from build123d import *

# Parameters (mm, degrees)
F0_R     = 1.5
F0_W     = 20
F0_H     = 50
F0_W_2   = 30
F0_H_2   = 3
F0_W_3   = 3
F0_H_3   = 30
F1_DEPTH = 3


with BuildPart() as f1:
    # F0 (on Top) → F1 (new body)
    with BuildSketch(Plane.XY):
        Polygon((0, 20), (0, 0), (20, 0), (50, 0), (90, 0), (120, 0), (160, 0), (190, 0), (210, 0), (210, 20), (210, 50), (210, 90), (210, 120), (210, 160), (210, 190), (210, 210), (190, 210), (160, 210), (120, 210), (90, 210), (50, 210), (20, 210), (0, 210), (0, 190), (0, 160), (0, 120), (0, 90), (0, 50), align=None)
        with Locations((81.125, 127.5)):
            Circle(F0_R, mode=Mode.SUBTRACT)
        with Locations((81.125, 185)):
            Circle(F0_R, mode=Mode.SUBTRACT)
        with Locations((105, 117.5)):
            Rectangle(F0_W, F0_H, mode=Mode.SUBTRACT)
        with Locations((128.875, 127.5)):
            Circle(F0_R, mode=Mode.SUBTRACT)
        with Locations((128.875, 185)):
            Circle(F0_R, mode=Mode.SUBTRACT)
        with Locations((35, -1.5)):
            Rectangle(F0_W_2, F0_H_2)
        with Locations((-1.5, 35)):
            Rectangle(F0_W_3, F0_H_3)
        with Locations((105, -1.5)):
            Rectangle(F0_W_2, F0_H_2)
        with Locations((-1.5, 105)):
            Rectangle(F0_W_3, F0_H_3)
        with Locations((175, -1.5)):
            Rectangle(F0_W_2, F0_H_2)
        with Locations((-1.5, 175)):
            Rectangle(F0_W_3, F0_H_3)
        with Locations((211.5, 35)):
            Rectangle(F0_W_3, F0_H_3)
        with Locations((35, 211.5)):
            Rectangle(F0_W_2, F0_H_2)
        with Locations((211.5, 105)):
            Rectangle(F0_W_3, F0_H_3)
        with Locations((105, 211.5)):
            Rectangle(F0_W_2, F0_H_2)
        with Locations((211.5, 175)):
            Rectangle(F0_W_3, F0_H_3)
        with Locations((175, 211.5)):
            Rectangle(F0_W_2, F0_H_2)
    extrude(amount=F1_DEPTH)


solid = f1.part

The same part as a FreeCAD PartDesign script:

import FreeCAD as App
import Part
import Sketcher

V = App.Vector
Q = App.Units.Quantity

doc = App.newDocument("Part")
params = doc.addObject("Spreadsheet::Sheet", "Params")
for row, (alias, value) in enumerate([
    ("sketch1_diameter", "3 mm"),
    ("sketch1_width", "20 mm"),
    ("sketch1_width2", "30 mm"),
    ("sketch1_width3", "40 mm"),
    ("sketch1_width4", "3 mm"),
    ("pad1_length", "3 mm"),
], start=1):
    params.set(f"A{row}", alias)
    params.set(f"B{row}", "=" + value)
    params.setAlias(f"B{row}", alias)

body = doc.addObject("PartDesign::Body", "Body")

# Sketch on XY plane
sketch1 = body.newObject("Sketcher::SketchObject", "Sketch")
sketch1.AttachmentSupport = (doc.getObject("XY_Plane"), [""])
sketch1.MapMode = "FlatFace"
sketch1.addGeometry([
    Part.LineSegment(V(0, 0, 0), V(20, 0, 0)),  # 0
    Part.LineSegment(V(20, 0, 0), V(20, -3, 0)),  # 1
    Part.LineSegment(V(20, -3, 0), V(50, -3, 0)),  # 2
    Part.LineSegment(V(50, -3, 0), V(50, 0, 0)),  # 3
    Part.LineSegment(V(50, 0, 0), V(90, 0, 0)),  # 4
    Part.LineSegment(V(90, 0, 0), V(90, -3, 0)),  # 5
    Part.LineSegment(V(90, -3, 0), V(120, -3, 0)),  # 6
    Part.LineSegment(V(120, -3, 0), V(120, 0, 0)),  # 7
    Part.LineSegment(V(120, 0, 0), V(160, 0, 0)),  # 8
    Part.LineSegment(V(160, 0, 0), V(160, -3, 0)),  # 9
    Part.LineSegment(V(160, -3, 0), V(190, -3, 0)),  # 10
    Part.LineSegment(V(190, -3, 0), V(190, 0, 0)),  # 11
    Part.LineSegment(V(190, 0, 0), V(210, 0, 0)),  # 12
    Part.LineSegment(V(210, 0, 0), V(210, 20, 0)),  # 13
    Part.LineSegment(V(210, 20, 0), V(213, 20, 0)),  # 14
    Part.LineSegment(V(213, 20, 0), V(213, 50, 0)),  # 15
    Part.LineSegment(V(213, 50, 0), V(210, 50, 0)),  # 16
    Part.LineSegment(V(210, 50, 0), V(210, 90, 0)),  # 17
    Part.LineSegment(V(210, 90, 0), V(213, 90, 0)),  # 18
    Part.LineSegment(V(213, 90, 0), V(213, 120, 0)),  # 19
    Part.LineSegment(V(213, 120, 0), V(210, 120, 0)),  # 20
    Part.LineSegment(V(210, 120, 0), V(210, 160, 0)),  # 21
    Part.LineSegment(V(210, 160, 0), V(213, 160, 0)),  # 22
    Part.LineSegment(V(213, 160, 0), V(213, 190, 0)),  # 23
    Part.LineSegment(V(213, 190, 0), V(210, 190, 0)),  # 24
    Part.LineSegment(V(210, 190, 0), V(210, 210, 0)),  # 25
    Part.LineSegment(V(210, 210, 0), V(190, 210, 0)),  # 26
    Part.LineSegment(V(190, 210, 0), V(190, 213, 0)),  # 27
    Part.LineSegment(V(190, 213, 0), V(160, 213, 0)),  # 28
    Part.LineSegment(V(160, 213, 0), V(160, 210, 0)),  # 29
    Part.LineSegment(V(160, 210, 0), V(120, 210, 0)),  # 30
    Part.LineSegment(V(120, 210, 0), V(120, 213, 0)),  # 31
    Part.LineSegment(V(120, 213, 0), V(90, 213, 0)),  # 32
    Part.LineSegment(V(90, 213, 0), V(90, 210, 0)),  # 33
    Part.LineSegment(V(90, 210, 0), V(50, 210, 0)),  # 34
    Part.LineSegment(V(50, 210, 0), V(50, 213, 0)),  # 35
    Part.LineSegment(V(50, 213, 0), V(20, 213, 0)),  # 36
    Part.LineSegment(V(20, 213, 0), V(20, 210, 0)),  # 37
    Part.LineSegment(V(20, 210, 0), V(0, 210, 0)),  # 38
    Part.LineSegment(V(0, 210, 0), V(0, 190, 0)),  # 39
    Part.LineSegment(V(0, 190, 0), V(-3, 190, 0)),  # 40
    Part.LineSegment(V(-3, 190, 0), V(-3, 160, 0)),  # 41
    Part.LineSegment(V(-3, 160, 0), V(0, 160, 0)),  # 42
    Part.LineSegment(V(0, 160, 0), V(0, 120, 0)),  # 43
    Part.LineSegment(V(0, 120, 0), V(-3, 120, 0)),  # 44
    Part.LineSegment(V(-3, 120, 0), V(-3, 90, 0)),  # 45
    Part.LineSegment(V(-3, 90, 0), V(0, 90, 0)),  # 46
    Part.LineSegment(V(0, 90, 0), V(0, 50, 0)),  # 47
    Part.LineSegment(V(0, 50, 0), V(-3, 50, 0)),  # 48
    Part.LineSegment(V(-3, 50, 0), V(-3, 20, 0)),  # 49
    Part.LineSegment(V(-3, 20, 0), V(0, 20, 0)),  # 50
    Part.LineSegment(V(0, 20, 0), V(0, 0, 0)),  # 51
    Part.Circle(V(81.125, 127.5, 0), V(0, 0, 1), 1.5),  # 52
    Part.LineSegment(V(115, 92.5, 0), V(95, 92.5, 0)),  # 53
    Part.LineSegment(V(95, 92.5, 0), V(95, 142.5, 0)),  # 54
    Part.LineSegment(V(95, 142.5, 0), V(115, 142.5, 0)),  # 55
    Part.LineSegment(V(115, 142.5, 0), V(115, 92.5, 0)),  # 56
    Part.Circle(V(128.875, 127.5, 0), V(0, 0, 1), 1.5),  # 57
    Part.Circle(V(81.125, 185, 0), V(0, 0, 1), 1.5),  # 58
    Part.Circle(V(128.875, 185, 0), V(0, 0, 1), 1.5),  # 59
], False)
sketch1.addConstraint([
    Sketcher.Constraint("Coincident", 0, 2, 1, 1),
    Sketcher.Constraint("Coincident", 1, 2, 2, 1),
    Sketcher.Constraint("Coincident", 2, 2, 3, 1),
    Sketcher.Constraint("Coincident", 3, 2, 4, 1),
    Sketcher.Constraint("Coincident", 4, 2, 5, 1),
    Sketcher.Constraint("Coincident", 5, 2, 6, 1),
    Sketcher.Constraint("Coincident", 6, 2, 7, 1),
    Sketcher.Constraint("Coincident", 7, 2, 8, 1),
    Sketcher.Constraint("Coincident", 8, 2, 9, 1),
    Sketcher.Constraint("Coincident", 9, 2, 10, 1),
    Sketcher.Constraint("Coincident", 10, 2, 11, 1),
    Sketcher.Constraint("Coincident", 11, 2, 12, 1),
    Sketcher.Constraint("Coincident", 12, 2, 13, 1),
    Sketcher.Constraint("Coincident", 13, 2, 14, 1),
    Sketcher.Constraint("Coincident", 14, 2, 15, 1),
    Sketcher.Constraint("Coincident", 15, 2, 16, 1),
    Sketcher.Constraint("Coincident", 16, 2, 17, 1),
    Sketcher.Constraint("Coincident", 17, 2, 18, 1),
    Sketcher.Constraint("Coincident", 18, 2, 19, 1),
    Sketcher.Constraint("Coincident", 19, 2, 20, 1),
    Sketcher.Constraint("Coincident", 20, 2, 21, 1),
    Sketcher.Constraint("Coincident", 21, 2, 22, 1),
    Sketcher.Constraint("Coincident", 22, 2, 23, 1),
    Sketcher.Constraint("Coincident", 23, 2, 24, 1),
    Sketcher.Constraint("Coincident", 24, 2, 25, 1),
    Sketcher.Constraint("Coincident", 25, 2, 26, 1),
    Sketcher.Constraint("Coincident", 26, 2, 27, 1),
    Sketcher.Constraint("Coincident", 27, 2, 28, 1),
    Sketcher.Constraint("Coincident", 28, 2, 29, 1),
    Sketcher.Constraint("Coincident", 29, 2, 30, 1),
    Sketcher.Constraint("Coincident", 30, 2, 31, 1),
    Sketcher.Constraint("Coincident", 31, 2, 32, 1),
    Sketcher.Constraint("Coincident", 32, 2, 33, 1),
    Sketcher.Constraint("Coincident", 33, 2, 34, 1),
    Sketcher.Constraint("Coincident", 34, 2, 35, 1),
    Sketcher.Constraint("Coincident", 35, 2, 36, 1),
    Sketcher.Constraint("Coincident", 36, 2, 37, 1),
    Sketcher.Constraint("Coincident", 37, 2, 38, 1),
    Sketcher.Constraint("Coincident", 38, 2, 39, 1),
    Sketcher.Constraint("Coincident", 39, 2, 40, 1),
    Sketcher.Constraint("Coincident", 40, 2, 41, 1),
    Sketcher.Constraint("Coincident", 41, 2, 42, 1),
    Sketcher.Constraint("Coincident", 42, 2, 43, 1),
    Sketcher.Constraint("Coincident", 43, 2, 44, 1),
    Sketcher.Constraint("Coincident", 44, 2, 45, 1),
    Sketcher.Constraint("Coincident", 45, 2, 46, 1),
    Sketcher.Constraint("Coincident", 46, 2, 47, 1),
    Sketcher.Constraint("Coincident", 47, 2, 48, 1),
    Sketcher.Constraint("Coincident", 48, 2, 49, 1),
    Sketcher.Constraint("Coincident", 49, 2, 50, 1),
    Sketcher.Constraint("Coincident", 50, 2, 51, 1),
    Sketcher.Constraint("Coincident", 51, 2, 0, 1),
    Sketcher.Constraint("Coincident", 53, 2, 54, 1),
    Sketcher.Constraint("Coincident", 54, 2, 55, 1),
    Sketcher.Constraint("Coincident", 55, 2, 56, 1),
    Sketcher.Constraint("Coincident", 56, 2, 53, 1),
    Sketcher.Constraint("Horizontal", 0),
    Sketcher.Constraint("Vertical", 1),
    Sketcher.Constraint("Horizontal", 2),
    Sketcher.Constraint("Vertical", 3),
    Sketcher.Constraint("Horizontal", 4),
    Sketcher.Constraint("Vertical", 5),
    Sketcher.Constraint("Horizontal", 6),
    Sketcher.Constraint("Vertical", 7),
    Sketcher.Constraint("Horizontal", 8),
    Sketcher.Constraint("Vertical", 9),
    Sketcher.Constraint("Horizontal", 10),
    Sketcher.Constraint("Vertical", 11),
    Sketcher.Constraint("Horizontal", 12),
    Sketcher.Constraint("Vertical", 13),
    Sketcher.Constraint("Horizontal", 14),
    Sketcher.Constraint("Vertical", 15),
    Sketcher.Constraint("Horizontal", 16),
    Sketcher.Constraint("Vertical", 17),
    Sketcher.Constraint("Horizontal", 18),
    Sketcher.Constraint("Vertical", 19),
    Sketcher.Constraint("Horizontal", 20),
    Sketcher.Constraint("Vertical", 21),
    Sketcher.Constraint("Horizontal", 22),
    Sketcher.Constraint("Vertical", 23),
    Sketcher.Constraint("Horizontal", 24),
    Sketcher.Constraint("Vertical", 25),
    Sketcher.Constraint("Horizontal", 26),
    Sketcher.Constraint("Vertical", 27),
    Sketcher.Constraint("Horizontal", 28),
    Sketcher.Constraint("Vertical", 29),
    Sketcher.Constraint("Horizontal", 30),
    Sketcher.Constraint("Vertical", 31),
    Sketcher.Constraint("Horizontal", 32),
    Sketcher.Constraint("Vertical", 33),
    Sketcher.Constraint("Horizontal", 34),
    Sketcher.Constraint("Vertical", 35),
    Sketcher.Constraint("Horizontal", 36),
    Sketcher.Constraint("Vertical", 37),
    Sketcher.Constraint("Horizontal", 38),
    Sketcher.Constraint("Vertical", 39),
    Sketcher.Constraint("Horizontal", 40),
    Sketcher.Constraint("Vertical", 41),
    Sketcher.Constraint("Horizontal", 42),
    Sketcher.Constraint("Vertical", 43),
    Sketcher.Constraint("Horizontal", 44),
    Sketcher.Constraint("Vertical", 45),
    Sketcher.Constraint("Horizontal", 46),
    Sketcher.Constraint("Vertical", 47),
    Sketcher.Constraint("Horizontal", 48),
    Sketcher.Constraint("Vertical", 49),
    Sketcher.Constraint("Horizontal", 50),
    Sketcher.Constraint("Vertical", 51),
    Sketcher.Constraint("Horizontal", 53),
    Sketcher.Constraint("Vertical", 54),
    Sketcher.Constraint("Horizontal", 55),
    Sketcher.Constraint("Vertical", 56),
    Sketcher.Constraint("Coincident", 51, 2, -1, 1),
    Sketcher.Constraint("Equal", 52, 57),
    Sketcher.Constraint("Equal", 57, 58),
    Sketcher.Constraint("Equal", 58, 59),
    Sketcher.Constraint("PointOnObject", 3, 2, -1),
    Sketcher.Constraint("PointOnObject", 7, 2, -1),
    Sketcher.Constraint("PointOnObject", 11, 2, -1),
    Sketcher.Constraint("PointOnObject", 38, 2, -2),
    Sketcher.Constraint("PointOnObject", 42, 2, -2),
    Sketcher.Constraint("PointOnObject", 46, 2, -2),
    Sketcher.Constraint("Horizontal", 52, 3, 57, 3),
    Sketcher.Constraint("Horizontal", 58, 3, 59, 3),
    Sketcher.Constraint("Horizontal", 2, 2, 5, 2),
    Sketcher.Constraint("Horizontal", 6, 2, 9, 2),
    Sketcher.Constraint("Horizontal", 26, 2, 29, 2),
    Sketcher.Constraint("Horizontal", 28, 2, 31, 2),
    Sketcher.Constraint("Horizontal", 30, 2, 33, 2),
    Sketcher.Constraint("Horizontal", 32, 2, 35, 2),
    Sketcher.Constraint("Horizontal", 34, 2, 37, 2),
    Sketcher.Constraint("Horizontal", 24, 2, 39, 2),
    Sketcher.Constraint("Horizontal", 22, 2, 41, 2),
    Sketcher.Constraint("Horizontal", 20, 2, 43, 2),
    Sketcher.Constraint("Horizontal", 18, 2, 45, 2),
    Sketcher.Constraint("Horizontal", 16, 2, 47, 2),
    Sketcher.Constraint("Horizontal", 14, 2, 49, 2),
    Sketcher.Constraint("Vertical", 52, 3, 58, 3),
    Sketcher.Constraint("Vertical", 57, 3, 59, 3),
    Sketcher.Constraint("Vertical", 13, 2, 16, 2),
    Sketcher.Constraint("Vertical", 15, 2, 18, 2),
    Sketcher.Constraint("Vertical", 17, 2, 20, 2),
    Sketcher.Constraint("Vertical", 19, 2, 22, 2),
    Sketcher.Constraint("Vertical", 21, 2, 24, 2),
    Sketcher.Constraint("Vertical", 11, 2, 26, 2),
    Sketcher.Constraint("Vertical", 9, 2, 28, 2),
    Sketcher.Constraint("Vertical", 7, 2, 30, 2),
    Sketcher.Constraint("Vertical", 5, 2, 32, 2),
    Sketcher.Constraint("Vertical", 3, 2, 34, 2),
    Sketcher.Constraint("Vertical", 1, 2, 36, 2),
    Sketcher.Constraint("Vertical", 41, 2, 44, 2),
    Sketcher.Constraint("Vertical", 45, 2, 48, 2),
    Sketcher.Constraint("Equal", 2, 6),
    Sketcher.Constraint("Equal", 4, 8),
    Sketcher.Constraint("Equal", 6, 10),
    Sketcher.Constraint("Equal", 0, 12),
    Sketcher.Constraint("Equal", 24, 40),
    Sketcher.Constraint("Equal", 38, 53),
    Sketcher.Constraint("Equal", 50, 1),
    Sketcher.Constraint("Equal", 55, 13),
    Sketcher.Constraint("Equal", 36, 15),
    Sketcher.Constraint("Equal", 34, 17),
    Sketcher.Constraint("Equal", 15, 19),
    Sketcher.Constraint("Equal", 17, 21),
    Sketcher.Constraint("Equal", 19, 23),
    Sketcher.Constraint("Equal", 13, 25),
    Sketcher.Constraint("Equal", 11, 27),
    Sketcher.Constraint("Diameter", 52, Q("3 mm")),
    Sketcher.Constraint("DistanceX", 0, 1, 0, 2, Q("20 mm")),
    Sketcher.Constraint("DistanceX", 2, 1, 2, 2, Q("30 mm")),
    Sketcher.Constraint("DistanceX", 4, 1, 4, 2, Q("40 mm")),
    Sketcher.Constraint("DistanceX", 14, 1, 14, 2, Q("3 mm")),
    Sketcher.Constraint("DistanceY", 54, 1, 54, 2, Q("50 mm")),
    Sketcher.Constraint("DistanceY", -1, 1, 58, 3, Q("185 mm")),
    Sketcher.Constraint("DistanceX", -1, 1, 53, 2, Q("95 mm")),
    Sketcher.Constraint("DistanceY", 53, 2, 52, 3, Q("35 mm")),
    Sketcher.Constraint("DistanceY", -1, 1, 52, 3, Q("127.5 mm")),
    Sketcher.Constraint("DistanceX", 52, 3, 57, 3, Q("47.75 mm")),
    Sketcher.Constraint("DistanceX", -1, 1, 52, 3, Q("81.125 mm")),
])
sketch1.setExpression("Constraints[167]", "Params.sketch1_diameter")
sketch1.setExpression("Constraints[168]", "Params.sketch1_width")
sketch1.setExpression("Constraints[169]", "Params.sketch1_width2")
sketch1.setExpression("Constraints[170]", "Params.sketch1_width3")
sketch1.setExpression("Constraints[171]", "Params.sketch1_width4")
pad1 = body.newObject("PartDesign::Pad", "Pad")
pad1.Profile = sketch1
pad1.setExpression("Length", "Params.pad1_length")

doc.recompute()
